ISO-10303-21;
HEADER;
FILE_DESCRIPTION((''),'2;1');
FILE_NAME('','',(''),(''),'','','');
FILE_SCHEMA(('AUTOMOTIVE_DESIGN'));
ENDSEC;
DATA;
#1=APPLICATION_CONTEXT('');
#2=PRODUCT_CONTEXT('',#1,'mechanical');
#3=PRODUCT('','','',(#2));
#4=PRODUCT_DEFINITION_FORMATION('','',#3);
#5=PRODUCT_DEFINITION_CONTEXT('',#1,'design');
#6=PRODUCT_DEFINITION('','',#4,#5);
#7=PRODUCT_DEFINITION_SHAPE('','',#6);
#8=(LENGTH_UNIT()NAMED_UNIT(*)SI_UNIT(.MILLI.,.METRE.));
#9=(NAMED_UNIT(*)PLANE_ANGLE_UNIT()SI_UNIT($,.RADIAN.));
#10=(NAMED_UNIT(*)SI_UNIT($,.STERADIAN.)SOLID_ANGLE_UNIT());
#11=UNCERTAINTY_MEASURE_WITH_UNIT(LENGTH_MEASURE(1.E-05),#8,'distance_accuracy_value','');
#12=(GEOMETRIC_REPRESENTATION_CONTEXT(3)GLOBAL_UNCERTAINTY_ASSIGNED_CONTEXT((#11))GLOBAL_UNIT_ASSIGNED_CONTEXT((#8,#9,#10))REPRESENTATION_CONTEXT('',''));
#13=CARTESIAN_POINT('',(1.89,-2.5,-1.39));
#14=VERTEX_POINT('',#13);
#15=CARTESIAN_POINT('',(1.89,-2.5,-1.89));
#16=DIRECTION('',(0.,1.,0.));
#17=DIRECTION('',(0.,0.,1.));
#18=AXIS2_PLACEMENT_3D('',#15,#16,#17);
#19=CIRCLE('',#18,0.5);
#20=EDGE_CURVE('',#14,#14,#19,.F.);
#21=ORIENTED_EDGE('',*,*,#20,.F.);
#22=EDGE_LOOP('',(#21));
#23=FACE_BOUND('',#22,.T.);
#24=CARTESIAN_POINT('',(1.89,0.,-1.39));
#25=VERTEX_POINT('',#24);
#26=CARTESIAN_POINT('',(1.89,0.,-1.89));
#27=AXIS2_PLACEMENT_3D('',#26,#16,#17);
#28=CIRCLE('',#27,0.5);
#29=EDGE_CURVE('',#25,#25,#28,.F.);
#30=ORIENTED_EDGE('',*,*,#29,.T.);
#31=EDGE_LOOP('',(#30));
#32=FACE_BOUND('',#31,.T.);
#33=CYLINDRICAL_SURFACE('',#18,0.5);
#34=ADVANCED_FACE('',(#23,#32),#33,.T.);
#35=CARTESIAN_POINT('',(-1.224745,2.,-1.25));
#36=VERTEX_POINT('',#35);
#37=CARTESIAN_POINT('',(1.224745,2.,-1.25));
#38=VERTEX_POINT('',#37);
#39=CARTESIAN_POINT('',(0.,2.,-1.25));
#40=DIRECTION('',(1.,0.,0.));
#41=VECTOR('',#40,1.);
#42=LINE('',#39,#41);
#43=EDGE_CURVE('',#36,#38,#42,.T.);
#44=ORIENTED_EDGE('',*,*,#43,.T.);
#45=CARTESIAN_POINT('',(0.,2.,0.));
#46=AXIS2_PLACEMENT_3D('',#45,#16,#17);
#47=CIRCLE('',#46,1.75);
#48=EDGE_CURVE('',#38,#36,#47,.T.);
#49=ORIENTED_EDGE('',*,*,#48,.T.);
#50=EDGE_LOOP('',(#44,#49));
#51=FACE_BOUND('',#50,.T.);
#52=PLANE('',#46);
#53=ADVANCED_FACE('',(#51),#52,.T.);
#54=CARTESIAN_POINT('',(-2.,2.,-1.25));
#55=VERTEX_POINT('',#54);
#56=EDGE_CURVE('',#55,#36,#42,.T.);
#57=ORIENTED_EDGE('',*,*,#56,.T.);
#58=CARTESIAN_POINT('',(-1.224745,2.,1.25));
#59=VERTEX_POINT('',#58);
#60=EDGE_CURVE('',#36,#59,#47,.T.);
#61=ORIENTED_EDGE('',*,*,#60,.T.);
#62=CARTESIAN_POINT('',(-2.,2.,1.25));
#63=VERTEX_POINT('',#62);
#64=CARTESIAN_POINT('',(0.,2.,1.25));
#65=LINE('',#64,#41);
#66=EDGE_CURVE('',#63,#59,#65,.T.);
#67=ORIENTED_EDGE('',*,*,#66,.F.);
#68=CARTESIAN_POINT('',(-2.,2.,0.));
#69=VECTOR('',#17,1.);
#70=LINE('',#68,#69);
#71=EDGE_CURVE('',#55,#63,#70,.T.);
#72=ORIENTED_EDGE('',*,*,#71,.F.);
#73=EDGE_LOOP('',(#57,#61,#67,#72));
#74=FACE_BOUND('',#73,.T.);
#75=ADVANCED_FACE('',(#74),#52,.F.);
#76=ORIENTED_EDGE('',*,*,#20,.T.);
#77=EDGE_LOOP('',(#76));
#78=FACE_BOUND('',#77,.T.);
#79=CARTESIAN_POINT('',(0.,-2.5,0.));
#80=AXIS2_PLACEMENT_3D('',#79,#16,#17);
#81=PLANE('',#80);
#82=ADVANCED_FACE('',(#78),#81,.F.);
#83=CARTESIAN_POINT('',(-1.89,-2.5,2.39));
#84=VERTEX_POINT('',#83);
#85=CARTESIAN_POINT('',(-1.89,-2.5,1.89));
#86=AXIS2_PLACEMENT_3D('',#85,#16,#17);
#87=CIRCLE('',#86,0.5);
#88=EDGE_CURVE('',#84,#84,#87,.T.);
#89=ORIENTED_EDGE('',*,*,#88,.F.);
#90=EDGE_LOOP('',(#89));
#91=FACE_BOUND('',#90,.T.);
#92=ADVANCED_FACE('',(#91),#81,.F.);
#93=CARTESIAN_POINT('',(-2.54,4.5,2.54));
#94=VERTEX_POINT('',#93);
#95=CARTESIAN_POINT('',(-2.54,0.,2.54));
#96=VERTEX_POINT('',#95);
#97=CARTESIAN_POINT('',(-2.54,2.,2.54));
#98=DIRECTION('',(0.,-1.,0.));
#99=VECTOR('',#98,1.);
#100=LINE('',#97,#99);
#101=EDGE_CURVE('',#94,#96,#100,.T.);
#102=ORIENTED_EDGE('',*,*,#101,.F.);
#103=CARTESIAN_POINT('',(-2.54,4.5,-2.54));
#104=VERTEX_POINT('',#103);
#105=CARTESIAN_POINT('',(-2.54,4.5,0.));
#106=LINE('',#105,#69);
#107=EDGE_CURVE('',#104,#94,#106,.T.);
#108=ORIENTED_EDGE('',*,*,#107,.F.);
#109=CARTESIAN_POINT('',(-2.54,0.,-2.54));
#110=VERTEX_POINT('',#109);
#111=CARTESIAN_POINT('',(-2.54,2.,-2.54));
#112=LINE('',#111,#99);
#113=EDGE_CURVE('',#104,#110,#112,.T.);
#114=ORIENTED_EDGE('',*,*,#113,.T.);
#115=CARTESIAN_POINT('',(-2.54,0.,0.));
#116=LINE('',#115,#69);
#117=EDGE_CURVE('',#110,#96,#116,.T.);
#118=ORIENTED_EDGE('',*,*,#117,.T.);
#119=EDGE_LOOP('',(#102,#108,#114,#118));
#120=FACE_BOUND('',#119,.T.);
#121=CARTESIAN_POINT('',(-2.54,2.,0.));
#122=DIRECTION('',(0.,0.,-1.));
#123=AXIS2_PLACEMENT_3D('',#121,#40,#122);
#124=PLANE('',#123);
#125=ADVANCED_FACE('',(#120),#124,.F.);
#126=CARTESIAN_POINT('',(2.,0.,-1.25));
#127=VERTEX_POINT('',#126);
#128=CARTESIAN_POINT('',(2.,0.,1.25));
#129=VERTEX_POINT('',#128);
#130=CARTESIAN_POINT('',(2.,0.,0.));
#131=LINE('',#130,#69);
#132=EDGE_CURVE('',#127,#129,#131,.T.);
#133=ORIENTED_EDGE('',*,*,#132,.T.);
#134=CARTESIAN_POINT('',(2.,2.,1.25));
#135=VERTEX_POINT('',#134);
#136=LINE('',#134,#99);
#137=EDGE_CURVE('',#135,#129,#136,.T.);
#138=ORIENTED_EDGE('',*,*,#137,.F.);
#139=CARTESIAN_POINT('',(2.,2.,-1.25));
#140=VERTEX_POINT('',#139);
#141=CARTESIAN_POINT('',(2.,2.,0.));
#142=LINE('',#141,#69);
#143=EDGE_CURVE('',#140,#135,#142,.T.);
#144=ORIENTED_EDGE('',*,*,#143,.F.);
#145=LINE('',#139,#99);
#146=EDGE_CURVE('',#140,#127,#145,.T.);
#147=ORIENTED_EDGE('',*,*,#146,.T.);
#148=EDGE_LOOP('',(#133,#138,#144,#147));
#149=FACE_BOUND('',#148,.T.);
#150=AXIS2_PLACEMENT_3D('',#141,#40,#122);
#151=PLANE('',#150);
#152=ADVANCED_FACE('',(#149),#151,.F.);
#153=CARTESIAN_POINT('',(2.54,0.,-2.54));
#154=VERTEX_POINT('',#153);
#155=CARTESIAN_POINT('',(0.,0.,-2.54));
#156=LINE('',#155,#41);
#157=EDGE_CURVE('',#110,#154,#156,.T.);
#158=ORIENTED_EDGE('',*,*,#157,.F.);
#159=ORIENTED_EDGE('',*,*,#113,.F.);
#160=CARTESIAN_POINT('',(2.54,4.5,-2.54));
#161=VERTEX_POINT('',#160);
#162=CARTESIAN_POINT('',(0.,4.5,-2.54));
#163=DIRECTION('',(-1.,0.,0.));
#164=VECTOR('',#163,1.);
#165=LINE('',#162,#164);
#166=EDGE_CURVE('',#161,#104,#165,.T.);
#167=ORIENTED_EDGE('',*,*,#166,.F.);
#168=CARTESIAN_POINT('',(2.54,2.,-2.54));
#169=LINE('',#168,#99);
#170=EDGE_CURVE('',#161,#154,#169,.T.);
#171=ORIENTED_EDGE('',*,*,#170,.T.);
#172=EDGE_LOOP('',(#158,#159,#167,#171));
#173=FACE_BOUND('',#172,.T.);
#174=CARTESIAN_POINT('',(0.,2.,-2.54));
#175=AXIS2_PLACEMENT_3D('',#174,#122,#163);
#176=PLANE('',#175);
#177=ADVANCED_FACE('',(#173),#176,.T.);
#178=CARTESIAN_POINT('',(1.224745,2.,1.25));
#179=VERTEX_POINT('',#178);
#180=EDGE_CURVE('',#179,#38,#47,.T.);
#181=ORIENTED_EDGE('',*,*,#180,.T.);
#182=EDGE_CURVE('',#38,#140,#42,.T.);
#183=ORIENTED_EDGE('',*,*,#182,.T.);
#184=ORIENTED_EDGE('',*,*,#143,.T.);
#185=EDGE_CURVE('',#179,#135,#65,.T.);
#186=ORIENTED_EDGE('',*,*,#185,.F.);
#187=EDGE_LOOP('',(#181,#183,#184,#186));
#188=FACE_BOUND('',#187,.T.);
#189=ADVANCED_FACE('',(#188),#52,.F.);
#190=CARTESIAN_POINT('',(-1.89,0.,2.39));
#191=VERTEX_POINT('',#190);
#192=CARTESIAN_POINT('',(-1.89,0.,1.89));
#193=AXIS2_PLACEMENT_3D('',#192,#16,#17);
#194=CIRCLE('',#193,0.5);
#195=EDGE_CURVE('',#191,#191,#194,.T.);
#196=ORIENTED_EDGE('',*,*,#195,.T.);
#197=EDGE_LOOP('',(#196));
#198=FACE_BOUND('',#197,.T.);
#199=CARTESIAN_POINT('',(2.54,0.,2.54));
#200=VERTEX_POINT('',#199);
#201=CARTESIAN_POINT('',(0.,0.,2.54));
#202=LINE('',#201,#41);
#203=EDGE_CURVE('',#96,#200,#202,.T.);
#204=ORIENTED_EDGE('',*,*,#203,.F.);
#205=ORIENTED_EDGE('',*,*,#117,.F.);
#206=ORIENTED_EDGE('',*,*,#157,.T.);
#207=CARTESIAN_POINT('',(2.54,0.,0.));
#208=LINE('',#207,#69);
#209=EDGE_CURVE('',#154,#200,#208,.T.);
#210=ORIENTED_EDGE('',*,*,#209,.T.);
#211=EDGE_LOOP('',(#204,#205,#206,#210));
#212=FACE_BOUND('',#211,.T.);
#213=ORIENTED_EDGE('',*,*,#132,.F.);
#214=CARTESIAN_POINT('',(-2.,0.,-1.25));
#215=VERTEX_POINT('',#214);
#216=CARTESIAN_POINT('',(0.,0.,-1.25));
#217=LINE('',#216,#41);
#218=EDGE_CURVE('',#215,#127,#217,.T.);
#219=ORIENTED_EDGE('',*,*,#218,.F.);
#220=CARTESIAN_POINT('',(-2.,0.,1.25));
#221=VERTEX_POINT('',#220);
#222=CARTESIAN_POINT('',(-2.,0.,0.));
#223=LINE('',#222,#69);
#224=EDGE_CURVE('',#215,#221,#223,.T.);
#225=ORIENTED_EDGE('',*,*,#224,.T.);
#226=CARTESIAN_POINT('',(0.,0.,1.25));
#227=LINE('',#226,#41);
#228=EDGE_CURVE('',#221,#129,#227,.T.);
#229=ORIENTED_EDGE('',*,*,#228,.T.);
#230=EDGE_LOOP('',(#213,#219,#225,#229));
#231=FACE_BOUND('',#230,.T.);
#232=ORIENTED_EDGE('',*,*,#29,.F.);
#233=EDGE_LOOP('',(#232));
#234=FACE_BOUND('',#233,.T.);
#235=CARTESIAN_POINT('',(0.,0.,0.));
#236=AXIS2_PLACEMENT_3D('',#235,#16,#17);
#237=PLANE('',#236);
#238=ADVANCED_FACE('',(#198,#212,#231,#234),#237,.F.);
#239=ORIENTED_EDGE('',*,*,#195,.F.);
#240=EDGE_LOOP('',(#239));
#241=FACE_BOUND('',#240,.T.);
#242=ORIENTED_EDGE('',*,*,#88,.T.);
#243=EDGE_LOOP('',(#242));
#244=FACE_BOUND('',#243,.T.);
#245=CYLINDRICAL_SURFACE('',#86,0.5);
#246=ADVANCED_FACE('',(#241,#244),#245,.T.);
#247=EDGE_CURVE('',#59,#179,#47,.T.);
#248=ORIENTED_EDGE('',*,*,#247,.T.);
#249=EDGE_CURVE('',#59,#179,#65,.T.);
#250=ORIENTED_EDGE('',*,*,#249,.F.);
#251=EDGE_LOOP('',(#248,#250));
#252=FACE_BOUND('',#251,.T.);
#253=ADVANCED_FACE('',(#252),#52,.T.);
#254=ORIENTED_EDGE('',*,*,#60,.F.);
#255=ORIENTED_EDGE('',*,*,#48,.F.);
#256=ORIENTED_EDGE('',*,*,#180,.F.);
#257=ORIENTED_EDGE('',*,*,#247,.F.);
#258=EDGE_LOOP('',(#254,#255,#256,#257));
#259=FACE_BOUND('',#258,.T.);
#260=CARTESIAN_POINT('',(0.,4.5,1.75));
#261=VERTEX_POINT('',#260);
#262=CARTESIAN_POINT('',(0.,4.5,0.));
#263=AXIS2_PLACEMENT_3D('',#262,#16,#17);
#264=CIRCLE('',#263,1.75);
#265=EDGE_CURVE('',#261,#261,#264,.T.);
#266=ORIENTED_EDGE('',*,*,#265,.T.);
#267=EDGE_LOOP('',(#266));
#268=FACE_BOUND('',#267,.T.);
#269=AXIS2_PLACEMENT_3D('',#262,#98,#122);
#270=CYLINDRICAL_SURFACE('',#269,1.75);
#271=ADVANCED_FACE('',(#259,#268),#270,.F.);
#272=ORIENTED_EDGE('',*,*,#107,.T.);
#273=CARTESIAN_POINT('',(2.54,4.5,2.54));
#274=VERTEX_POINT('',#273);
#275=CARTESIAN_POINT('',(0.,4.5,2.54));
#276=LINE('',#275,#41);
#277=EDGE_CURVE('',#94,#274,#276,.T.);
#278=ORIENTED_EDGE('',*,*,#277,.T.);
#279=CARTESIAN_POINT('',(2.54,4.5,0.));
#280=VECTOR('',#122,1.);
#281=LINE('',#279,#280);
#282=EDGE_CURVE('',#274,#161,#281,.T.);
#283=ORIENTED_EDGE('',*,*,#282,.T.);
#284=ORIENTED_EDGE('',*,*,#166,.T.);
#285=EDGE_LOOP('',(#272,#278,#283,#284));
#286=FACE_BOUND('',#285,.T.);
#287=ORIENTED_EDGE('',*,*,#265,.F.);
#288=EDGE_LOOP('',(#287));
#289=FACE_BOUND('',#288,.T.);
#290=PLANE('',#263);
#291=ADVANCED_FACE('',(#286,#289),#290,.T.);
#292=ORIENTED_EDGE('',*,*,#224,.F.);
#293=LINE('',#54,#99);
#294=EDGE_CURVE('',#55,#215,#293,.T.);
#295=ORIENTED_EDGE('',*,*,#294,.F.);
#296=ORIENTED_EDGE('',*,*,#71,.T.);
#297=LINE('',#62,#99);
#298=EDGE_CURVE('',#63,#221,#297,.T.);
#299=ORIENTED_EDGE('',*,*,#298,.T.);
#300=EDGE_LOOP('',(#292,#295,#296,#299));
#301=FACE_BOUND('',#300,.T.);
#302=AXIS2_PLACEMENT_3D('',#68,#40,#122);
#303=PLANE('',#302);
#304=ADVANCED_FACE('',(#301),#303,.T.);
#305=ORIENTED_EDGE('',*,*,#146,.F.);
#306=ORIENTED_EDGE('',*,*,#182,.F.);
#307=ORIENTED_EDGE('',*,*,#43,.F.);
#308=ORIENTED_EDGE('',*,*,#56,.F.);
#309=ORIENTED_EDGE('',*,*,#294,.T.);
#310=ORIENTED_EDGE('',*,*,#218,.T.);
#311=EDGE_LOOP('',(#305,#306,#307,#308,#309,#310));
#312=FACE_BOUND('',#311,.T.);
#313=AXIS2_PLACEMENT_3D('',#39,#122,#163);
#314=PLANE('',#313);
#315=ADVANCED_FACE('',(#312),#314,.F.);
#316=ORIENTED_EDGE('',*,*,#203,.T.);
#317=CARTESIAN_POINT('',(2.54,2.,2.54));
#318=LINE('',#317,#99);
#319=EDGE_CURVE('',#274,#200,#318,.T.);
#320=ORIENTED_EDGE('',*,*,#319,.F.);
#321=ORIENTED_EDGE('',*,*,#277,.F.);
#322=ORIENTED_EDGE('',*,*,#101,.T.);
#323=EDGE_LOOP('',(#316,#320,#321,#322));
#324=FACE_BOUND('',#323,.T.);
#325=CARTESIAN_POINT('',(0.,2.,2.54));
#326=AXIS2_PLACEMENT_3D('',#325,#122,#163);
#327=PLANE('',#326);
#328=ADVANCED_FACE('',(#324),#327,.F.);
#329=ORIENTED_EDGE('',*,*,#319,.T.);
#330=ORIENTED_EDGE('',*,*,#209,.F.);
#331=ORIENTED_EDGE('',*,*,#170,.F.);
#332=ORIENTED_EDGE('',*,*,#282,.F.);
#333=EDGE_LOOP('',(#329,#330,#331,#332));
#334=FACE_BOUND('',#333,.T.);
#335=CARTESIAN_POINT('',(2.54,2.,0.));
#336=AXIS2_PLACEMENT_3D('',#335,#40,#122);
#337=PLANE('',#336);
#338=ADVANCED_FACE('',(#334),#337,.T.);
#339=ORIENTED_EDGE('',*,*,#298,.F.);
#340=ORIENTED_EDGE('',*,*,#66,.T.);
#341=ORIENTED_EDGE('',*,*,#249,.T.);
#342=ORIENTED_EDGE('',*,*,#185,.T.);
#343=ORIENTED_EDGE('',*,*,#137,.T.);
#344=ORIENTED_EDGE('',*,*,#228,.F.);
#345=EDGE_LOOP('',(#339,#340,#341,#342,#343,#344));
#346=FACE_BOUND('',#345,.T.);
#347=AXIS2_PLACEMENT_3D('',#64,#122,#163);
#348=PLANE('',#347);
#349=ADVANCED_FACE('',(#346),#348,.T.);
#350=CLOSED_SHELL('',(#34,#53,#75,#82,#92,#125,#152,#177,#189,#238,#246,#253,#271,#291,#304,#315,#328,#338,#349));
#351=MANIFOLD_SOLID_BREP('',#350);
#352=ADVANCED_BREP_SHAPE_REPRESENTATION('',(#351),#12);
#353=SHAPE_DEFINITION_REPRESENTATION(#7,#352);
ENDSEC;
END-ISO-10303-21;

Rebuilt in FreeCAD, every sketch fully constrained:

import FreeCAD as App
import Part
import Sketcher
from FreeCAD import Vector
Q = App.Units.Quantity


def add_polygon(sketch, points):
    """Adds a closed chain of lines whose ends are joined by coincident constraints."""
    first, n = sketch.GeometryCount, len(points)
    for a, b in zip(points, points[1:] + points[:1]):
        sketch.addGeometry(Part.LineSegment(App.Vector(*a, 0), App.Vector(*b, 0)), False)
    for i in range(n):
        sketch.addConstraint(Sketcher.Constraint("Coincident", first + i, 2, first + (i + 1) % n, 1))

doc = App.newDocument("Part")
body = doc.addObject("PartDesign::Body", "Body")

# Sketch on XZ plane
sketch1 = body.newObject("Sketcher::SketchObject", "Sketch")
sketch1.AttachmentSupport = (doc.getObject("XZ_Plane"), [""])
sketch1.MapMode = "FlatFace"
add_polygon(sketch1, [(-2.54, -2.54), (-2.54, 2.54), (2.54, 2.54), (2.54, -2.54)])  # lines 0-3
add_polygon(sketch1, [(2, 1.25), (-2, 1.25), (-2, -1.25), (2, -1.25)])  # lines 4-7
sketch1.addConstraint(Sketcher.Constraint("Vertical", 0))
sketch1.addConstraint(Sketcher.Constraint("Horizontal", 1))
sketch1.addConstraint(Sketcher.Constraint("Vertical", 2))
sketch1.addConstraint(Sketcher.Constraint("Horizontal", 3))
sketch1.addConstraint(Sketcher.Constraint("Horizontal", 4))
sketch1.addConstraint(Sketcher.Constraint("Vertical", 5))
sketch1.addConstraint(Sketcher.Constraint("Horizontal", 6))
sketch1.addConstraint(Sketcher.Constraint("Vertical", 7))
sketch1.addConstraint(Sketcher.Constraint("Symmetric", 0, 2, 2, 2, -1, 1))
sketch1.addConstraint(Sketcher.Constraint("Symmetric", 4, 2, 6, 2, -1, 1))
sketch1.addConstraint(Sketcher.Constraint("Equal", 3, 0))
sketch1.addConstraint(Sketcher.Constraint("DistanceX", 4, 2, 4, 1, Q("4 mm")))
sketch1.addConstraint(Sketcher.Constraint("DistanceY", 5, 2, 5, 1, Q("2.5 mm")))
sketch1.addConstraint(Sketcher.Constraint("DistanceX", 1, 1, 1, 2, Q("5.08 mm")))
pad1 = body.newObject("PartDesign::Pad", "Pad")
pad1.Profile = sketch1
pad1.Length = 2
pad1.Reversed = True

# Sketch on XZ plane
sketch2 = body.newObject("Sketcher::SketchObject", "Sketch001")
sketch2.AttachmentSupport = (doc.getObject("XZ_Plane"), [""])
sketch2.MapMode = "FlatFace"
sketch2.AttachmentOffset = App.Placement(Vector(0, 0, -2), App.Rotation())
add_polygon(sketch2, [(-2.54, -2.54), (-2.54, 2.54), (2.54, 2.54), (2.54, -2.54)])  # lines 0-3
sketch2.addGeometry(Part.Circle(Vector(0, 0, 0), Vector(0, 0, 1), 1.75), False)  # 4
sketch2.addConstraint(Sketcher.Constraint("Vertical", 0))
sketch2.addConstraint(Sketcher.Constraint("Horizontal", 1))
sketch2.addConstraint(Sketcher.Constraint("Vertical", 2))
sketch2.addConstraint(Sketcher.Constraint("Horizontal", 3))
sketch2.addConstraint(Sketcher.Constraint("Coincident", 4, 3, -1, 1))
sketch2.addConstraint(Sketcher.Constraint("Symmetric", 0, 2, 2, 2, -1, 1))
sketch2.addConstraint(Sketcher.Constraint("Equal", 3, 0))
sketch2.addConstraint(Sketcher.Constraint("Diameter", 4, Q("3.5 mm")))
sketch2.addConstraint(Sketcher.Constraint("DistanceX", 1, 1, 1, 2, Q("5.08 mm")))
pad2 = body.newObject("PartDesign::Pad", "Pad001")
pad2.Profile = sketch2
pad2.Length = 2.5
pad2.Reversed = True

# Sketch on XZ plane
sketch3 = body.newObject("Sketcher::SketchObject", "Sketch002")
sketch3.AttachmentSupport = (doc.getObject("XZ_Plane"), [""])
sketch3.MapMode = "FlatFace"
sketch3.addGeometry(Part.Circle(Vector(-1.89, 1.89, 0), Vector(0, 0, 1), 0.5), False)
sketch3.addGeometry(Part.Circle(Vector(1.89, -1.89, 0), Vector(0, 0, 1), 0.5), False)
sketch3.addConstraint(Sketcher.Constraint("Equal", 0, 1))
sketch3.addConstraint(Sketcher.Constraint("Symmetric", 0, 3, 1, 3, -1, 1))
sketch3.addConstraint(Sketcher.Constraint("Diameter", 0, Q("1 mm")))
sketch3.addConstraint(Sketcher.Constraint("DistanceX", 0, 3, -1, 1, Q("1.89 mm")))
sketch3.addConstraint(Sketcher.Constraint("DistanceY", -1, 1, 0, 3, Q("1.89 mm")))
pad3 = body.newObject("PartDesign::Pad", "Pad002")
pad3.Profile = sketch3
pad3.Length = 2.5

doc.recompute()
